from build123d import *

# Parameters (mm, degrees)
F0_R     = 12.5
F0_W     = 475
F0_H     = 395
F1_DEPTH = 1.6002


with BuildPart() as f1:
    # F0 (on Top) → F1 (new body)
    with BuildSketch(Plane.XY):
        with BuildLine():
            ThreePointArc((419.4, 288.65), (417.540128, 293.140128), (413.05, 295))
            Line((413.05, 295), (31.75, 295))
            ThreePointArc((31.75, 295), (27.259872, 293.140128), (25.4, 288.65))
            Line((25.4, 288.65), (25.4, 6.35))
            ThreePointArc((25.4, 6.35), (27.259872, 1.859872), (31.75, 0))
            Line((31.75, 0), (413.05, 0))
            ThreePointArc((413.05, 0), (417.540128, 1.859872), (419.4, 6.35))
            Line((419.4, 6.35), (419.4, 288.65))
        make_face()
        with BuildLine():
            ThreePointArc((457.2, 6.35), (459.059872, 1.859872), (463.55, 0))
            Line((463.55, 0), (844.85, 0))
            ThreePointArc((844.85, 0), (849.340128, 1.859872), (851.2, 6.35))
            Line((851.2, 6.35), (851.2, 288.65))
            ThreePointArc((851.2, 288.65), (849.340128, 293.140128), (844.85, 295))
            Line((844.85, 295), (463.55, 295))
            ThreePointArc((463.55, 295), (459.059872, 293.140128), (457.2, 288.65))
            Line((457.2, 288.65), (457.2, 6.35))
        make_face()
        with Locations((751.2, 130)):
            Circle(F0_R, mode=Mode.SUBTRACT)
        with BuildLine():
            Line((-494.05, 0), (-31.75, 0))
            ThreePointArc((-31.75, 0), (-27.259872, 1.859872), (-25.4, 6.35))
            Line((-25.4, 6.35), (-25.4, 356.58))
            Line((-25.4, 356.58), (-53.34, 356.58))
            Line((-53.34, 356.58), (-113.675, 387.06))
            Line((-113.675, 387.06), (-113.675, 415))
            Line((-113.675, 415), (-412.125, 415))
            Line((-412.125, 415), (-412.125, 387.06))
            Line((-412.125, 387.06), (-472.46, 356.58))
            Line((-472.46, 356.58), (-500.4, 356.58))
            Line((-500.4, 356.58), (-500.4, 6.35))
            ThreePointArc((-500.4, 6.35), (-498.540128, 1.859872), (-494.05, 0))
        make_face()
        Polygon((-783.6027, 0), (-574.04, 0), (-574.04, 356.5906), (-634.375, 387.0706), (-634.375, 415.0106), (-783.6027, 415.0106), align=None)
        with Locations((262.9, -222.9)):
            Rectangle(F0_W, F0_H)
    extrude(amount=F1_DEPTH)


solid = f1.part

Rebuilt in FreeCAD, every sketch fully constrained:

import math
import FreeCAD as App
import Part
import Sketcher

V = App.Vector
Q = App.Units.Quantity

doc = App.newDocument("Part")
body = doc.addObject("PartDesign::Body", "Body")
body.AllowCompound = True

sketch1 = body.newObject("Sketcher::SketchObject", "Sketch")
sketch1.AttachmentSupport = (doc.getObject("XY_Plane"), [""])
sketch1.MapMode = "FlatFace"
sketch1.addGeometry([
    Part.ArcOfCircle(Part.Circle(V(413, 289, 0), V(0, 0, 1), 6), math.radians(0), math.radians(90)),
    Part.LineSegment(V(413, 295, 0), V(32, 295, 0)),
    Part.ArcOfCircle(Part.Circle(V(32, 289, 0), V(0, 0, 1), 6), math.radians(90), math.radians(180)),
    Part.LineSegment(V(25, 289, 0), V(25, 6, 0)),
    Part.ArcOfCircle(Part.Circle(V(32, 6, 0), V(0, 0, 1), 6), math.radians(-180), math.radians(-90)),
    Part.LineSegment(V(32, 0, 0), V(413, 0, 0)),
    Part.ArcOfCircle(Part.Circle(V(413, 6, 0), V(0, 0, 1), 6), math.radians(-90), math.radians(0)),
    Part.LineSegment(V(419, 6, 0), V(419, 289, 0)),
    Part.ArcOfCircle(Part.Circle(V(464, 6, 0), V(0, 0, 1), 6), math.radians(-180), math.radians(-90)),
    Part.LineSegment(V(464, 0, 0), V(845, 0, 0)),
    Part.ArcOfCircle(Part.Circle(V(845, 6, 0), V(0, 0, 1), 6), math.radians(-90), math.radians(0)),
    Part.LineSegment(V(851, 6, 0), V(851, 289, 0)),
    Part.ArcOfCircle(Part.Circle(V(845, 289, 0), V(0, 0, 1), 6), math.radians(0), math.radians(90)),
    Part.LineSegment(V(845, 295, 0), V(464, 295, 0)),
    Part.ArcOfCircle(Part.Circle(V(464, 289, 0), V(0, 0, 1), 6), math.radians(90), math.radians(180)),
    Part.LineSegment(V(457, 289, 0), V(457, 6, 0)),
    Part.Circle(V(751, 130, 0), V(0, 0, 1), 12),
    Part.LineSegment(V(-494, 0, 0), V(-32, 0, 0)),
    Part.ArcOfCircle(Part.Circle(V(-32, 6, 0), V(0, 0, 1), 6), math.radians(-90), math.radians(0)),
    Part.LineSegment(V(-25, 6, 0), V(-25, 357, 0)),
    Part.LineSegment(V(-25, 357, 0), V(-53, 357, 0)),
    Part.LineSegment(V(-53, 357, 0), V(-114, 387, 0)),
    Part.LineSegment(V(-114, 387, 0), V(-114, 415, 0)),
    Part.LineSegment(V(-114, 415, 0), V(-412, 415, 0)),
    Part.LineSegment(V(-412, 415, 0), V(-412, 387, 0)),
    Part.LineSegment(V(-412, 387, 0), V(-472, 357, 0)),
    Part.LineSegment(V(-472, 357, 0), V(-500, 357, 0)),
    Part.LineSegment(V(-500, 357, 0), V(-500, 6, 0)),
    Part.ArcOfCircle(Part.Circle(V(-494, 6, 0), V(0, 0, 1), 6), math.radians(-180), math.radians(-90)),
    Part.LineSegment(V(-784, 0, 0), V(-574, 0, 0)),
    Part.LineSegment(V(-574, 0, 0), V(-574, 357, 0)),
    Part.LineSegment(V(-574, 357, 0), V(-634, 387, 0)),
    Part.LineSegment(V(-634, 387, 0), V(-634, 415, 0)),
    Part.LineSegment(V(-634, 415, 0), V(-784, 415, 0)),
    Part.LineSegment(V(-784, 415, 0), V(-784, 0, 0)),
    Part.LineSegment(V(25, -25, 0), V(25, -420, 0)),
    Part.LineSegment(V(25, -420, 0), V(500, -420, 0)),
    Part.LineSegment(V(500, -420, 0), V(500, -25, 0)),
    Part.LineSegment(V(500, -25, 0), V(25, -25, 0)),
], False)
sketch1.addConstraint([
    Sketcher.Constraint("Tangent", 0, 2, 1, 1),
    Sketcher.Constraint("Tangent", 1, 2, 2, 1),
    Sketcher.Constraint("Tangent", 2, 2, 3, 1),
    Sketcher.Constraint("Tangent", 3, 2, 4, 1),
    Sketcher.Constraint("Tangent", 4, 2, 5, 1),
    Sketcher.Constraint("Tangent", 5, 2, 6, 1),
    Sketcher.Constraint("Tangent", 6, 2, 7, 1),
    Sketcher.Constraint("Tangent", 7, 2, 0, 1),
    Sketcher.Constraint("Tangent", 8, 2, 9, 1),
    Sketcher.Constraint("Tangent", 9, 2, 10, 1),
    Sketcher.Constraint("Tangent", 10, 2, 11, 1),
    Sketcher.Constraint("Tangent", 11, 2, 12, 1),
    Sketcher.Constraint("Tangent", 12, 2, 13, 1),
    Sketcher.Constraint("Tangent", 13, 2, 14, 1),
    Sketcher.Constraint("Tangent", 14, 2, 15, 1),
    Sketcher.Constraint("Tangent", 15, 2, 8, 1),
    Sketcher.Constraint("Tangent", 17, 2, 18, 1),
    Sketcher.Constraint("Tangent", 18, 2, 19, 1),
    Sketcher.Constraint("Coincident", 19, 2, 20, 1),
    Sketcher.Constraint("Coincident", 20, 2, 21, 1),
    Sketcher.Constraint("Coincident", 21, 2, 22, 1),
    Sketcher.Constraint("Coincident", 22, 2, 23, 1),
    Sketcher.Constraint("Coincident", 23, 2, 24, 1),
    Sketcher.Constraint("Coincident", 24, 2, 25, 1),
    Sketcher.Constraint("Coincident", 25, 2, 26, 1),
    Sketcher.Constraint("Coincident", 26, 2, 27, 1),
    Sketcher.Constraint("Tangent", 27, 2, 28, 1),
    Sketcher.Constraint("Tangent", 28, 2, 17, 1),
    Sketcher.Constraint("Coincident", 29, 2, 30, 1),
    Sketcher.Constraint("Coincident", 30, 2, 31, 1),
    Sketcher.Constraint("Coincident", 31, 2, 32, 1),
    Sketcher.Constraint("Coincident", 32, 2, 33, 1),
    Sketcher.Constraint("Coincident", 33, 2, 34, 1),
    Sketcher.Constraint("Coincident", 34, 2, 29, 1),
    Sketcher.Constraint("Coincident", 35, 2, 36, 1),
    Sketcher.Constraint("Coincident", 36, 2, 37, 1),
    Sketcher.Constraint("Coincident", 37, 2, 38, 1),
    Sketcher.Constraint("Coincident", 38, 2, 35, 1),
    Sketcher.Constraint("Horizontal", 1),
    Sketcher.Constraint("Vertical", 3),
    Sketcher.Constraint("Horizontal", 5),
    Sketcher.Constraint("Vertical", 7),
    Sketcher.Constraint("Horizontal", 9),
    Sketcher.Constraint("Vertical", 11),
    Sketcher.Constraint("Horizontal", 13),
    Sketcher.Constraint("Vertical", 15),
    Sketcher.Constraint("Horizontal", 17),
    Sketcher.Constraint("Vertical", 19),
    Sketcher.Constraint("Horizontal", 20),
    Sketcher.Constraint("Vertical", 22),
    Sketcher.Constraint("Horizontal", 23),
    Sketcher.Constraint("Vertical", 24),
    Sketcher.Constraint("Horizontal", 26),
    Sketcher.Constraint("Vertical", 27),
    Sketcher.Constraint("Horizontal", 29),
    Sketcher.Constraint("Vertical", 30),
    Sketcher.Constraint("Vertical", 32),
    Sketcher.Constraint("Horizontal", 33),
    Sketcher.Constraint("Vertical", 34),
    Sketcher.Constraint("Vertical", 35),
    Sketcher.Constraint("Horizontal", 36),
    Sketcher.Constraint("Vertical", 37),
    Sketcher.Constraint("Horizontal", 38),
    Sketcher.Constraint("Equal", 0, 2),
    Sketcher.Constraint("Equal", 2, 4),
    Sketcher.Constraint("Equal", 4, 6),
    Sketcher.Constraint("Equal", 6, 8),
    Sketcher.Constraint("Equal", 8, 10),
    Sketcher.Constraint("Equal", 10, 12),
    Sketcher.Constraint("Equal", 12, 14),
    Sketcher.Constraint("Equal", 14, 18),
    Sketcher.Constraint("Equal", 18, 28),
    Sketcher.Constraint("Symmetric", 4, 2, 17, 2, -1, 1),
    Sketcher.Constraint("PointOnObject", 4, 2, -1),
    Sketcher.Constraint("PointOnObject", 8, 2, -1),
    Sketcher.Constraint("PointOnObject", 29, 2, -1),
    Sketcher.Constraint("Parallel", 21, 31),
    Sketcher.Constraint("Horizontal", 2, 3, 12, 3),
    Sketcher.Constraint("Horizontal", 21, 2, 24, 2),
    Sketcher.Constraint("Horizontal", 20, 2, 25, 2),
    Sketcher.Constraint("Vertical", 3, 2, 35, 2),
    Sketcher.Constraint("Equal", 5, 9),
    Sketcher.Constraint("Equal", 20, 26),
    Sketcher.Constraint("Equal", 26, 22),
    Sketcher.Constraint("Equal", 24, 32),
    Sketcher.Constraint("Equal", 21, 25),
    Sketcher.Constraint("Equal", 25, 31),
    Sketcher.Constraint("Diameter", 16, Q("25 mm")),
    Sketcher.Constraint("DistanceX", 36, 1, 36, 2, Q("475 mm")),
    Sketcher.Constraint("DistanceY", 35, 2, 35, 1, Q("395 mm")),
    Sketcher.Constraint("Radius", 0, Q("6.35 mm")),
    Sketcher.Constraint("DistanceX", 1, 2, 1, 1, Q("381.3 mm")),
    Sketcher.Constraint("DistanceX", 17, 1, 17, 2, Q("462.3 mm")),
    Sketcher.Constraint("DistanceY", 3, 2, 3, 1, Q("282.3 mm")),
    Sketcher.Constraint("DistanceY", -1, 1, 16, 3, Q("130 mm")),
    Sketcher.Constraint("DistanceY", -1, 1, 22, 2, Q("415 mm")),
    Sketcher.Constraint("DistanceX", 16, 3, 10, 2, Q("100 mm")),
    Sketcher.Constraint("DistanceX", 20, 2, 20, 1, Q("27.94 mm")),
    Sketcher.Constraint("DistanceX", 23, 2, 23, 1, Q("298.45 mm")),
    Sketcher.Constraint("DistanceY", 19, 1, 19, 2, Q("350.23 mm")),
    Sketcher.Constraint("DistanceX", -1, 1, 16, 3, Q("751.2 mm")),
    Sketcher.Constraint("DistanceX", -1, 1, 2, 2, Q("25.4 mm")),
    Sketcher.Constraint("DistanceY", 35, 2, -1, 1, Q("420.4 mm")),
    Sketcher.Constraint("DistanceX", 29, 2, -1, 1, Q("574.04 mm")),
    Sketcher.Constraint("DistanceX", 29, 1, 29, 2, Q("209.5627 mm")),
    Sketcher.Constraint("DistanceY", 30, 1, 30, 2, Q("356.5906 mm")),
])
pad1 = body.newObject("PartDesign::Pad", "Pad")
pad1.Profile = sketch1
pad1.Length = 1.6002

doc.recompute()
